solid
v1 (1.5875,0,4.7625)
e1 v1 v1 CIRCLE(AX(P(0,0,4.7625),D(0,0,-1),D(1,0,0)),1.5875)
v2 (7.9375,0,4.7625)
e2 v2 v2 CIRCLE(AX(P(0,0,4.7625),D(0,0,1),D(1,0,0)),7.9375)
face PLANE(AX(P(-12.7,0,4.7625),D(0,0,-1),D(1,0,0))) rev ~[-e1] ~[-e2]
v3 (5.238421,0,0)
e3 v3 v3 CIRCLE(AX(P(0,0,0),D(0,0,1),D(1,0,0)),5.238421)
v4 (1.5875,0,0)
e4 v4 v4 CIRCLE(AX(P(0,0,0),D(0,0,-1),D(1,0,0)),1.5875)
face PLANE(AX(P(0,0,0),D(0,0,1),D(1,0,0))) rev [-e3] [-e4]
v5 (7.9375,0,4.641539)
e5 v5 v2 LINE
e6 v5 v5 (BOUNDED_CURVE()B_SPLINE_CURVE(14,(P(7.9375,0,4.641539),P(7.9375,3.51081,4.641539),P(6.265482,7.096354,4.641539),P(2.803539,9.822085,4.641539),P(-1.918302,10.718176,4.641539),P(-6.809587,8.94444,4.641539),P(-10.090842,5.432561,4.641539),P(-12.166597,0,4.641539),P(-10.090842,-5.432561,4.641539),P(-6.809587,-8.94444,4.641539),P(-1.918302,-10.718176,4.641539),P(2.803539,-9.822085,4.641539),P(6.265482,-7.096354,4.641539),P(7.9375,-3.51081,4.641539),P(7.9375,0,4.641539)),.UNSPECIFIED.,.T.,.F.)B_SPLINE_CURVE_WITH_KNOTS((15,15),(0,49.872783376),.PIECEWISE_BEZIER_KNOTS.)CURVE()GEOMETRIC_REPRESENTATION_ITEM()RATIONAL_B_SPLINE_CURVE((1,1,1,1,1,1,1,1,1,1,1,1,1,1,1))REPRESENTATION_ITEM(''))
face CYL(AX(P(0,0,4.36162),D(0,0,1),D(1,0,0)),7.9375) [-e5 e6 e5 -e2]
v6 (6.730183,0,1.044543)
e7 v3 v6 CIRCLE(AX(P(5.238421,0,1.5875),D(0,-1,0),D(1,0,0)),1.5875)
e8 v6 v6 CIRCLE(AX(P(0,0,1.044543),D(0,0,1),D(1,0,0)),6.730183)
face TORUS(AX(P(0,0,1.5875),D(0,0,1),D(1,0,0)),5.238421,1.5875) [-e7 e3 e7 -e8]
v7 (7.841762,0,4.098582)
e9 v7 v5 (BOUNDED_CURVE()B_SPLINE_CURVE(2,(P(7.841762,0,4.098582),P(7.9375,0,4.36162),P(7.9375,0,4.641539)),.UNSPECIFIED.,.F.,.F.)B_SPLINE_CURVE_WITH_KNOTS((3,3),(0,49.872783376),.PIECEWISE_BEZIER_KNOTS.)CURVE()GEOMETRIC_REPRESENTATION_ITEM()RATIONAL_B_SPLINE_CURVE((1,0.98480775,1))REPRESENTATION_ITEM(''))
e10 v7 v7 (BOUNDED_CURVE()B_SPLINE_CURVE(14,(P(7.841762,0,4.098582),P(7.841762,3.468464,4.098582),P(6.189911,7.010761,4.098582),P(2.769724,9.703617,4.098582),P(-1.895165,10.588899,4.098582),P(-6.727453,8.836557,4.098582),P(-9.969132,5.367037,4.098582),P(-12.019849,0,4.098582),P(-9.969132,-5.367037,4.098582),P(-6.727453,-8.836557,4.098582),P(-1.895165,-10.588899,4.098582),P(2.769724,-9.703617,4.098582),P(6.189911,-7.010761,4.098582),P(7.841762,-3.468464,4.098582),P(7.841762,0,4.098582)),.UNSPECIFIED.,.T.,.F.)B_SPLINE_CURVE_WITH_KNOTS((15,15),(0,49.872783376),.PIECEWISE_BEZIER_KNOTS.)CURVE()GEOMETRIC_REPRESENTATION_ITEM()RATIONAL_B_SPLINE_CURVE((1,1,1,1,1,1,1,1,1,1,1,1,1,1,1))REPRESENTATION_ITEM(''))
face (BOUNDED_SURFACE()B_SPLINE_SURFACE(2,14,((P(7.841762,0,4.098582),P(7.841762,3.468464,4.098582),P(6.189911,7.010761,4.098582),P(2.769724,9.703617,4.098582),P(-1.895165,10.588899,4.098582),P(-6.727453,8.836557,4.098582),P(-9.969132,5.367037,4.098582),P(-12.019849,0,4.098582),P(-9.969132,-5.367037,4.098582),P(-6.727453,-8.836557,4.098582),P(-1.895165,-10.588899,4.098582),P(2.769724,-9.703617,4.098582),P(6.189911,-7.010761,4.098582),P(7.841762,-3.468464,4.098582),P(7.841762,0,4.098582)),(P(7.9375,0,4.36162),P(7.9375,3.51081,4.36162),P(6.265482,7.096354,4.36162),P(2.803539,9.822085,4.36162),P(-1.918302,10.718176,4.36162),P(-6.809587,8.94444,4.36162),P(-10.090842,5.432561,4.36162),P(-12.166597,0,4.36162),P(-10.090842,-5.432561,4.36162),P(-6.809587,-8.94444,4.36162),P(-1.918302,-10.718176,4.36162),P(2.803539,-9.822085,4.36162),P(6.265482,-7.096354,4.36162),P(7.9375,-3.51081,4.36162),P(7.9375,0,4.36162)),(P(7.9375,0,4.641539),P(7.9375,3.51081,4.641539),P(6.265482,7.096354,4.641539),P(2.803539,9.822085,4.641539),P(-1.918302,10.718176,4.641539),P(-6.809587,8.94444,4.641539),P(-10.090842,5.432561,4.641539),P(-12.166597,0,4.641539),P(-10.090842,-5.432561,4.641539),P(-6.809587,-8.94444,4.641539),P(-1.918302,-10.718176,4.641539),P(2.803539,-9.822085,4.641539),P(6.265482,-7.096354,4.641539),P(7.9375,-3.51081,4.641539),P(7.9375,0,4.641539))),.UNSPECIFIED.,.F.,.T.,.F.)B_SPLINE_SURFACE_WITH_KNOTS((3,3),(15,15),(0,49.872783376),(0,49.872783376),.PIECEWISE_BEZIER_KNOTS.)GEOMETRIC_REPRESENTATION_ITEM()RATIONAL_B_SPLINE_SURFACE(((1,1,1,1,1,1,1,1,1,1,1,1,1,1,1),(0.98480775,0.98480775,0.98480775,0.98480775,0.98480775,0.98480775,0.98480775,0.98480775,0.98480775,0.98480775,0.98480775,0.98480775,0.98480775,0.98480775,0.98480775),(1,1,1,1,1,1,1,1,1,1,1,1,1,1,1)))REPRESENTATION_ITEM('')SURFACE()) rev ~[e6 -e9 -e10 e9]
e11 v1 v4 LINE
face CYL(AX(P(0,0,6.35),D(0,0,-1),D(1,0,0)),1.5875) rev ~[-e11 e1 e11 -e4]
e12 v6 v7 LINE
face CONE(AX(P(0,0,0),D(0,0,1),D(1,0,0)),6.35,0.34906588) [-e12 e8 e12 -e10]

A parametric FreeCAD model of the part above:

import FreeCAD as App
import Part
import Sketcher
Q = App.Units.Quantity


def edges_at(feature, points):
    """Names of the edges that pass closest to the given points."""
    edges = feature.Shape.Edges
    near = lambda p: min(range(len(edges)), key=lambda i: edges[i].distToShape(Part.Vertex(*p))[0])
    return sorted({f"Edge{near(p) + 1}" for p in points})


def add_polygon(sketch, points):
    """Adds a closed chain of lines whose ends are joined by coincident constraints."""
    first, n = sketch.GeometryCount, len(points)
    for a, b in zip(points, points[1:] + points[:1]):
        sketch.addGeometry(Part.LineSegment(App.Vector(*a, 0), App.Vector(*b, 0)), False)
    for i in range(n):
        sketch.addConstraint(Sketcher.Constraint("Coincident", first + i, 2, first + (i + 1) % n, 1))

doc = App.newDocument("Part")
body = doc.addObject("PartDesign::Body", "Body")

sketch1 = doc.addObject("Sketcher::SketchObject", "Sketch")
body.addObject(sketch1)
sketch1.AttachmentSupport = (doc.XZ_Plane, [""])
sketch1.MapMode = "FlatFace"
add_polygon(sketch1, [(7.9, 12.7), (0, 12.7), (0, 0), (6.3, 0), (7.9, 4.4)])
sketch1.addConstraint(Sketcher.Constraint("Horizontal", 0))
sketch1.addConstraint(Sketcher.Constraint("Vertical", 1))
sketch1.addConstraint(Sketcher.Constraint("Horizontal", 2))
sketch1.addConstraint(Sketcher.Constraint("Vertical", 4))
sketch1.addConstraint(Sketcher.Constraint("Coincident", 1, 2, -1, 1))
sketch1.addConstraint(Sketcher.Constraint("DistanceY", 1, 2, 1, 1, Q("0.5 in")))
sketch1.addConstraint(Sketcher.Constraint("Angle", 3, Q("69.999998 deg")))
sketch1.addConstraint(Sketcher.Constraint("DistanceX", 2, 1, 2, 2, Q("0.25 in")))
sketch1.addConstraint(Sketcher.Constraint("DistanceX", 0, 2, 0, 1, Q("0.3125 in")))
revolution = doc.addObject("PartDesign::Revolution", "Revolution")
body.addObject(revolution)
revolution.Profile = sketch1
revolution.ReferenceAxis = (sketch1, ["V_Axis"])
revolution.Angle = 360
doc.recompute()

fillet = doc.addObject("PartDesign::Fillet", "Fillet")
body.addObject(fillet)
fillet.Base = (revolution, edges_at(revolution, [(-6.35, 0, 0), (-7.938, 0, 4.362)]))
fillet.Radius = Q("0.0625 in")

sketch2 = doc.addObject("Sketcher::SketchObject", "Sketch001")
body.addObject(sketch2)
sketch2.AttachmentSupport = (doc.XZ_Plane, [""])
sketch2.MapMode = "FlatFace"
add_polygon(sketch2, [(-13, 21), (-13, 5), (13, 5), (13, 21)])
sketch2.addConstraint(Sketcher.Constraint("Vertical", 0))
sketch2.addConstraint(Sketcher.Constraint("Horizontal", 1))
sketch2.addConstraint(Sketcher.Constraint("Vertical", 2))
sketch2.addConstraint(Sketcher.Constraint("Horizontal", 3))
sketch2.addConstraint(Sketcher.Constraint("DistanceX", 1, 1, 1, 2, Q("1 in")))
sketch2.addConstraint(Sketcher.Constraint("DistanceX", 0, 2, -1, 1, Q("0.5 in")))
sketch2.addConstraint(Sketcher.Constraint("DistanceY", 0, 2, 0, 1, Q("0.625 in")))
sketch2.addConstraint(Sketcher.Constraint("DistanceY", -1, 1, 0, 2, Q("0.1875 in")))
pocket1 = doc.addObject("PartDesign::Pocket", "Pocket")
body.addObject(pocket1)
pocket1.Profile = sketch2
pocket1.Length = Q("1 in")
pocket1.Midplane = True

sketch3 = doc.addObject("Sketcher::SketchObject", "Sketch002")
body.addObject(sketch3)
sketch3.AttachmentSupport = (doc.XY_Plane, [""])
sketch3.MapMode = "FlatFace"
sketch3.addGeometry(Part.Circle(App.Vector(0, 0, 0), App.Vector(0, 0, 1), 0.8), False)
sketch3.addConstraint(Sketcher.Constraint("Coincident", 0, 3, -1, 1))
sketch3.addConstraint(Sketcher.Constraint("Diameter", 0, Q("0.0625 in")))
doc.recompute()
hole = doc.addObject("PartDesign::Hole", "Hole")
body.addObject(hole)
hole.Profile = sketch3
hole.ThreadType = "None"
hole.Diameter = Q("0.0625 in")
hole.DepthType = "Dimension"
hole.Depth = Q("0.75 in")
hole.DrillPoint = "Flat"
hole.HoleCutType = "Counterbore"
hole.HoleCutDiameter = Q("0.125 in")
hole.HoleCutDepth = Q("0.25 in")
hole.Reversed = True

doc.recompute()
